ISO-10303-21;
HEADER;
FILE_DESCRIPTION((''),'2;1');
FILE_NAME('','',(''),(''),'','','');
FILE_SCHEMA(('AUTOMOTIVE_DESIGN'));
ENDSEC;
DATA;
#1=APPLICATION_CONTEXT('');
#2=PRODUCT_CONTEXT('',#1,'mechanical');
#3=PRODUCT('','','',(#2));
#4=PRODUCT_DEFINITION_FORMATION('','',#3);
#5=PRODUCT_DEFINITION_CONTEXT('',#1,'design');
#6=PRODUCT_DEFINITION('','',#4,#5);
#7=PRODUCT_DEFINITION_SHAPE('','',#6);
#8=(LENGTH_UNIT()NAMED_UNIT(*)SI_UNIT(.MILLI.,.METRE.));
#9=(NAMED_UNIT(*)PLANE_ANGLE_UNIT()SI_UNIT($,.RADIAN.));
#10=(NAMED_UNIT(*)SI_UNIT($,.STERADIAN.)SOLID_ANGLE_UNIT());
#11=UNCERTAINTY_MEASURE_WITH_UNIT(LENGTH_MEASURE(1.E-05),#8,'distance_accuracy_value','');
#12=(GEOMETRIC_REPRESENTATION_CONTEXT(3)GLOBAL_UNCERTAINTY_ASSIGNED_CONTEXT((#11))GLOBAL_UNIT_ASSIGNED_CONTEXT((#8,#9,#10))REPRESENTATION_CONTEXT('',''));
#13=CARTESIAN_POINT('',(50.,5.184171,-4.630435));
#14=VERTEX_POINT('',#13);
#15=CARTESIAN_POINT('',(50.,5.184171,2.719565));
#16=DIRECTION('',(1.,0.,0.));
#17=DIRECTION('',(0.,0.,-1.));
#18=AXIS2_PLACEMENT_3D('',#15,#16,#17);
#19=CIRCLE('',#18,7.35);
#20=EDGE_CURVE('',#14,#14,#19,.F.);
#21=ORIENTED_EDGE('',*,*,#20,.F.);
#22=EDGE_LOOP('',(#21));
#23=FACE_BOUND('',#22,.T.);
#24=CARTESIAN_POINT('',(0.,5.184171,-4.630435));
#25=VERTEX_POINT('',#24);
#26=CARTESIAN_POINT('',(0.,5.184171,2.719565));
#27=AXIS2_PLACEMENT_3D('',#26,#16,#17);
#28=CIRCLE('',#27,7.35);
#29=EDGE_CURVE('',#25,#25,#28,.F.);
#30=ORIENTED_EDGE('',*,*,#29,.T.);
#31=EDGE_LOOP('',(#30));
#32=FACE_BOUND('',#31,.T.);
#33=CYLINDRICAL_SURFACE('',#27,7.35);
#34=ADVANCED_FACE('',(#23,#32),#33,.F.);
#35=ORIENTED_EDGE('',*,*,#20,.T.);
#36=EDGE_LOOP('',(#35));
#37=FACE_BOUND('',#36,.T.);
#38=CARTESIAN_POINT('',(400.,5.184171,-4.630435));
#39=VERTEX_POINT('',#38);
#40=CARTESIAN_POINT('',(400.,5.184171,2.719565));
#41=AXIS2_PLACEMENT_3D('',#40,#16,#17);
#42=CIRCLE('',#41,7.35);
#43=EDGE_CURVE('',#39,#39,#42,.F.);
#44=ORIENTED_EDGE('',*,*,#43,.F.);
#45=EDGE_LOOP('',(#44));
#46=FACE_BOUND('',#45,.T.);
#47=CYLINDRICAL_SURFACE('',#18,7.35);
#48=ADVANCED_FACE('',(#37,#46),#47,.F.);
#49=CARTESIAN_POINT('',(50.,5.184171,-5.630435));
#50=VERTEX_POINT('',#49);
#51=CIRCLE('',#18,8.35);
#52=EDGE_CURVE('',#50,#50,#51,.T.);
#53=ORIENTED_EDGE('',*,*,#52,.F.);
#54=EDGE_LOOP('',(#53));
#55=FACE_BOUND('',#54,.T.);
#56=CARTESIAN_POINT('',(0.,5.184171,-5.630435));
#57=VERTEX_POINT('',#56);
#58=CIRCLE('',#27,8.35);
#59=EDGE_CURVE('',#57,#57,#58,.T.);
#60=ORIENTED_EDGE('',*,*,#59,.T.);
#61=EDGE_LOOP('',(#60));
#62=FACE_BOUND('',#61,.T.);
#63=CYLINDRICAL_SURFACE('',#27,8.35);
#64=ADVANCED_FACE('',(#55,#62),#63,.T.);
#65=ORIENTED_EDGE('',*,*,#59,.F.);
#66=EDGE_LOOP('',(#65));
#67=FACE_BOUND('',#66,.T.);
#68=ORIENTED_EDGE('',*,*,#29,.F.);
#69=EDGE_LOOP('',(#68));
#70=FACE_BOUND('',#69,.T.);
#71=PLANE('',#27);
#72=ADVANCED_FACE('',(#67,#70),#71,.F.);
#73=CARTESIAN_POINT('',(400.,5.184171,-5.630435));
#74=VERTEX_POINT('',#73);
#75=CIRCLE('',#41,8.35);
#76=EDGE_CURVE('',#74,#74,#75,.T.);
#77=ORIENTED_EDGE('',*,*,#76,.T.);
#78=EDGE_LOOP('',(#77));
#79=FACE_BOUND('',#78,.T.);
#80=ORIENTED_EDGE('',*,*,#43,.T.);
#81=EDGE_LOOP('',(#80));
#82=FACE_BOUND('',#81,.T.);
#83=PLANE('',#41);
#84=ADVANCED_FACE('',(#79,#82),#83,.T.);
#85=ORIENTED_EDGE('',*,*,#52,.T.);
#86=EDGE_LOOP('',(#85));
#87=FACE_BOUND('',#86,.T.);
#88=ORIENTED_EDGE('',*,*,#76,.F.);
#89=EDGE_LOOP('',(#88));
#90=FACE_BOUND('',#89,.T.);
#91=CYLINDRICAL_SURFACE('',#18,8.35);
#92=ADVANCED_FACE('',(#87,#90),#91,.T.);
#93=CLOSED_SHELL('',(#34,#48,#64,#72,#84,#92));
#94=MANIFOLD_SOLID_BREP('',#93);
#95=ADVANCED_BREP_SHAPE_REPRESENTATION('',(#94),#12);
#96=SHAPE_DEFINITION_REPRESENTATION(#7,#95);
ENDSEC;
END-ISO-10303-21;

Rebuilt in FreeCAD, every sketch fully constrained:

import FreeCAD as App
import Part
import Sketcher

V = App.Vector

doc = App.newDocument("Part")
body = doc.addObject("PartDesign::Body", "Body")

sketch1 = doc.addObject("Sketcher::SketchObject", "Sketch")
body.addObject(sketch1)
sketch1.AttachmentSupport = (doc.YZ_Plane, [""])
sketch1.MapMode = "FlatFace"
sketch1.addGeometry(Part.Circle(V(5, 3, 0), V(0, 0, 1), 8), False)
sketch1.addGeometry(Part.Circle(V(5, 3, 0), V(0, 0, 1), 7), False)
sketch1.addConstraint(Sketcher.Constraint("Coincident", 1, 3, 0, 3))
sketch1.addConstraint(Sketcher.Constraint("Diameter", 0, 16.7))
sketch1.addConstraint(Sketcher.Constraint("Diameter", 1, 14.7))
sketch1.addConstraint(Sketcher.Constraint("DistanceX", -1, 1, 0, 3, 5.184171))
sketch1.addConstraint(Sketcher.Constraint("DistanceY", -1, 1, 0, 3, 2.719565))

sketch2 = doc.addObject("Sketcher::SketchObject", "Sketch001")
body.addObject(sketch2)
sketch2.AttachmentSupport = (doc.XY_Plane, [""])
sketch2.MapMode = "FlatFace"
sketch2.addGeometry(Part.LineSegment(V(0, 5, 0), V(400, 5, 0)), False)
sketch2.addConstraint(Sketcher.Constraint("Horizontal", 0))
sketch2.addConstraint(Sketcher.Constraint("PointOnObject", 0, 1, -2))
sketch2.addConstraint(Sketcher.Constraint("DistanceX", 0, 1, 0, 2, 400.0))
sketch2.addConstraint(Sketcher.Constraint("DistanceY", -1, 1, 0, 1, 5.184171))
doc.recompute()

additivepipe = doc.addObject("PartDesign::AdditivePipe", "AdditivePipe")
body.addObject(additivepipe)
additivepipe.Profile = sketch1
additivepipe.Spine = (sketch2, ["Edge1"])

doc.recompute()
